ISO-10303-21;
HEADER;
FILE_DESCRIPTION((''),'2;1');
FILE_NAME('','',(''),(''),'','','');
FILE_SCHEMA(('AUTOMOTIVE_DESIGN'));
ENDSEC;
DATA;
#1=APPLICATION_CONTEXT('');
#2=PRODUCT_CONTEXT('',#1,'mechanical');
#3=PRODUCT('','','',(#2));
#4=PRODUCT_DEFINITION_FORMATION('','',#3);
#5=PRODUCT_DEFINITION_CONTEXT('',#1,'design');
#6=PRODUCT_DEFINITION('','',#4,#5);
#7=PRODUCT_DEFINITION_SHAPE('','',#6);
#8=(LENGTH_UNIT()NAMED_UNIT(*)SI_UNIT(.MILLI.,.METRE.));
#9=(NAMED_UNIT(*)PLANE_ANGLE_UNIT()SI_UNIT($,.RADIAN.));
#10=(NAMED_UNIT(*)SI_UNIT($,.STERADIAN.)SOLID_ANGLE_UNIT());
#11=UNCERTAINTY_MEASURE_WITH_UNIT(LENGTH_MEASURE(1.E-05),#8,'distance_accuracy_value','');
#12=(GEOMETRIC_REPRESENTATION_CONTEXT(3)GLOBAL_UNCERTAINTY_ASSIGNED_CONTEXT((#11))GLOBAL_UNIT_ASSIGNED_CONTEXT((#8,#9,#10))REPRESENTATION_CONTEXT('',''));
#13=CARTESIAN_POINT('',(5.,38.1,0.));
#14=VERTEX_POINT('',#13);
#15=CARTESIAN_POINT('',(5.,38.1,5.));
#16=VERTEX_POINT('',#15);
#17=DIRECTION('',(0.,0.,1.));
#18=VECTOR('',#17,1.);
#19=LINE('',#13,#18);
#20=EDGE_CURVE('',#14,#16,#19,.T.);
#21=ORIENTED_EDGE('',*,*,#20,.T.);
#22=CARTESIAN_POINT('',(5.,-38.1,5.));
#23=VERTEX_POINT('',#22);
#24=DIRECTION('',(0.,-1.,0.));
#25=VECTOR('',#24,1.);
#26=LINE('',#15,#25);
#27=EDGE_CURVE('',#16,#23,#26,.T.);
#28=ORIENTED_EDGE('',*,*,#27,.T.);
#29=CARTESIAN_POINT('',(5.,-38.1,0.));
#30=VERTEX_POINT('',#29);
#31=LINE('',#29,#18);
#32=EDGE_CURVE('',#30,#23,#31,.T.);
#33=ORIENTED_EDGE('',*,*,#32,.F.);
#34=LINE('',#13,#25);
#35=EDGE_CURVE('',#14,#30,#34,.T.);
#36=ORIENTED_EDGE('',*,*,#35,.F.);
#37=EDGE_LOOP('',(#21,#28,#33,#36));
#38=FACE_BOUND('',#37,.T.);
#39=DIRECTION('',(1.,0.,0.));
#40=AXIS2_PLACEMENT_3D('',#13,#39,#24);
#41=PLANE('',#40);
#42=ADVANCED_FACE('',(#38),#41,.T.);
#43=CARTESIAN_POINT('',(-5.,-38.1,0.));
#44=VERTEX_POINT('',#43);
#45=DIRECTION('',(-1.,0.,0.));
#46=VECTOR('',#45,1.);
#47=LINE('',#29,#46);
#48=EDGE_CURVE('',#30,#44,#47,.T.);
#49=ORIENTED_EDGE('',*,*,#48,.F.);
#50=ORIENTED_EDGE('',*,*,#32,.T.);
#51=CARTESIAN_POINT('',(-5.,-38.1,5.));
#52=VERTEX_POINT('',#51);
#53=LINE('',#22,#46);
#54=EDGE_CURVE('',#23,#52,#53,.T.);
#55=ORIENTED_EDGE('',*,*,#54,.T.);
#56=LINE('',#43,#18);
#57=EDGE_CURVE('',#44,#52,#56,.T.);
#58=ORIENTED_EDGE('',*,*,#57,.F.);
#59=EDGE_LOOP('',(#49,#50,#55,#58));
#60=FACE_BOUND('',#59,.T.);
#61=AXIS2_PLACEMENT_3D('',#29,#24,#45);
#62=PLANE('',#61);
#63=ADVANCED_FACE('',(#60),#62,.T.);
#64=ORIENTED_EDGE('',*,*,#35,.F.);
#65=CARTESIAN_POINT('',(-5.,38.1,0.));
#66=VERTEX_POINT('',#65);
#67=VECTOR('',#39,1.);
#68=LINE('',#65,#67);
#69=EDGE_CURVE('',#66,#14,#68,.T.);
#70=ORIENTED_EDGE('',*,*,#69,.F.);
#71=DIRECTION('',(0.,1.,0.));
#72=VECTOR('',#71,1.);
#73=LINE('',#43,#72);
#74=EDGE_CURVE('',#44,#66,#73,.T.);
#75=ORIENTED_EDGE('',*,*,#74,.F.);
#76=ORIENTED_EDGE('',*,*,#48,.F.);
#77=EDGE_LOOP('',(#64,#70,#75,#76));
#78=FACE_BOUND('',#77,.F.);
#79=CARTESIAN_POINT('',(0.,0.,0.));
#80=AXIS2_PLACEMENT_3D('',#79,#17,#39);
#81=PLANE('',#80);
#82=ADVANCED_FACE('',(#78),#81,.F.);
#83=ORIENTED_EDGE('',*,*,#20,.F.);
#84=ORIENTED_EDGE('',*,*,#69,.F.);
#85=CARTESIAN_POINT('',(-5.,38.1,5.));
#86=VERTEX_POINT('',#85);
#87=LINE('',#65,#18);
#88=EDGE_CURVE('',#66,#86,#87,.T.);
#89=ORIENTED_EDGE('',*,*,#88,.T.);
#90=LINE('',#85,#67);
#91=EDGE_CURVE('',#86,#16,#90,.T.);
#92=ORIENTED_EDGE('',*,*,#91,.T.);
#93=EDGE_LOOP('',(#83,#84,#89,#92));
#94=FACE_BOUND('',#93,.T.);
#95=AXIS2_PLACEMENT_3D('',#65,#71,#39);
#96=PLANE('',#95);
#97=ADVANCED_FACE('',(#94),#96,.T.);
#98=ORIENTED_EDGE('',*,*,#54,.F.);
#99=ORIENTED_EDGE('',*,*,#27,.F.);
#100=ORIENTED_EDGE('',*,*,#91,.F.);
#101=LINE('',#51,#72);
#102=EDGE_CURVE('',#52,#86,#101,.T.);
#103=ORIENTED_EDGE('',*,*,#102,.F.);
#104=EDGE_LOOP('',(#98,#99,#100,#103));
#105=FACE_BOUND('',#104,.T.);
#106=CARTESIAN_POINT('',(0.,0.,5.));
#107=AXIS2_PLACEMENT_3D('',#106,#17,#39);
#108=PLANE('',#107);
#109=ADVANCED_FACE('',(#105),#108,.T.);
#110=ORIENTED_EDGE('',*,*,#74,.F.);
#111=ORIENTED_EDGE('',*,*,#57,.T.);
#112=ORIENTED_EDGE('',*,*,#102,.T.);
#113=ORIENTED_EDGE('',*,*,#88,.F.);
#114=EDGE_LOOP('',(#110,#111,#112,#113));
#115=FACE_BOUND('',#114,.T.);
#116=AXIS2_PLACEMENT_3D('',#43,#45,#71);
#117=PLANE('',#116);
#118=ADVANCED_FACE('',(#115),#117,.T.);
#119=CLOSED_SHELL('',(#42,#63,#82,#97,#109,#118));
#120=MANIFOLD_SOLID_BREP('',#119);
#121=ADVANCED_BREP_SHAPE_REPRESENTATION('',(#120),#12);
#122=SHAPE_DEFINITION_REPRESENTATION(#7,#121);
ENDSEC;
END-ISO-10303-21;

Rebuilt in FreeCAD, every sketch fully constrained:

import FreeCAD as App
import Part
import Sketcher

V = App.Vector
Q = App.Units.Quantity


def add_polygon(sketch, points):
    """Adds a closed chain of lines whose ends are joined by coincident constraints."""
    first, n = sketch.GeometryCount, len(points)
    for a, b in zip(points, points[1:] + points[:1]):
        sketch.addGeometry(Part.LineSegment(App.Vector(*a, 0), App.Vector(*b, 0)), False)
    for i in range(n):
        sketch.addConstraint(Sketcher.Constraint("Coincident", first + i, 2, first + (i + 1) % n, 1))

doc = App.newDocument("Part")
params = doc.addObject("Spreadsheet::Sheet", "Params")
for row, (alias, value) in enumerate([
    ("sketch1_width", "10 mm"),
    ("sketch1_height", "76.2 mm"),
    ("pad1_length", "5 mm"),
], start=1):
    params.set(f"A{row}", alias)
    params.set(f"B{row}", "=" + value)
    params.setAlias(f"B{row}", alias)

body = doc.addObject("PartDesign::Body", "Body")

sketch1 = body.newObject("Sketcher::SketchObject", "Sketch")
sketch1.AttachmentSupport = (doc.getObject("XY_Plane"), [""])
sketch1.MapMode = "FlatFace"
add_polygon(sketch1, [(-5, -38.1), (5, -38.1), (5, 38.1), (-5, 38.1)])
sketch1.addConstraint(Sketcher.Constraint("Horizontal", 0))
sketch1.addConstraint(Sketcher.Constraint("Vertical", 1))
sketch1.addConstraint(Sketcher.Constraint("Horizontal", 2))
sketch1.addConstraint(Sketcher.Constraint("Vertical", 3))
sketch1.addConstraint(Sketcher.Constraint("Symmetric", 0, 2, 2, 2, -1, 1))
sketch1.addConstraint(Sketcher.Constraint("DistanceX", 0, 1, 0, 2, Q("10 mm")))
sketch1.addConstraint(Sketcher.Constraint("DistanceY", 1, 1, 1, 2, Q("76.2 mm")))
sketch1.setExpression("Constraints[9]", "Params.sketch1_width")
sketch1.setExpression("Constraints[10]", "Params.sketch1_height")
pad1 = body.newObject("PartDesign::Pad", "Pad")
pad1.Profile = sketch1
pad1.setExpression("Length", "Params.pad1_length")

doc.recompute()
